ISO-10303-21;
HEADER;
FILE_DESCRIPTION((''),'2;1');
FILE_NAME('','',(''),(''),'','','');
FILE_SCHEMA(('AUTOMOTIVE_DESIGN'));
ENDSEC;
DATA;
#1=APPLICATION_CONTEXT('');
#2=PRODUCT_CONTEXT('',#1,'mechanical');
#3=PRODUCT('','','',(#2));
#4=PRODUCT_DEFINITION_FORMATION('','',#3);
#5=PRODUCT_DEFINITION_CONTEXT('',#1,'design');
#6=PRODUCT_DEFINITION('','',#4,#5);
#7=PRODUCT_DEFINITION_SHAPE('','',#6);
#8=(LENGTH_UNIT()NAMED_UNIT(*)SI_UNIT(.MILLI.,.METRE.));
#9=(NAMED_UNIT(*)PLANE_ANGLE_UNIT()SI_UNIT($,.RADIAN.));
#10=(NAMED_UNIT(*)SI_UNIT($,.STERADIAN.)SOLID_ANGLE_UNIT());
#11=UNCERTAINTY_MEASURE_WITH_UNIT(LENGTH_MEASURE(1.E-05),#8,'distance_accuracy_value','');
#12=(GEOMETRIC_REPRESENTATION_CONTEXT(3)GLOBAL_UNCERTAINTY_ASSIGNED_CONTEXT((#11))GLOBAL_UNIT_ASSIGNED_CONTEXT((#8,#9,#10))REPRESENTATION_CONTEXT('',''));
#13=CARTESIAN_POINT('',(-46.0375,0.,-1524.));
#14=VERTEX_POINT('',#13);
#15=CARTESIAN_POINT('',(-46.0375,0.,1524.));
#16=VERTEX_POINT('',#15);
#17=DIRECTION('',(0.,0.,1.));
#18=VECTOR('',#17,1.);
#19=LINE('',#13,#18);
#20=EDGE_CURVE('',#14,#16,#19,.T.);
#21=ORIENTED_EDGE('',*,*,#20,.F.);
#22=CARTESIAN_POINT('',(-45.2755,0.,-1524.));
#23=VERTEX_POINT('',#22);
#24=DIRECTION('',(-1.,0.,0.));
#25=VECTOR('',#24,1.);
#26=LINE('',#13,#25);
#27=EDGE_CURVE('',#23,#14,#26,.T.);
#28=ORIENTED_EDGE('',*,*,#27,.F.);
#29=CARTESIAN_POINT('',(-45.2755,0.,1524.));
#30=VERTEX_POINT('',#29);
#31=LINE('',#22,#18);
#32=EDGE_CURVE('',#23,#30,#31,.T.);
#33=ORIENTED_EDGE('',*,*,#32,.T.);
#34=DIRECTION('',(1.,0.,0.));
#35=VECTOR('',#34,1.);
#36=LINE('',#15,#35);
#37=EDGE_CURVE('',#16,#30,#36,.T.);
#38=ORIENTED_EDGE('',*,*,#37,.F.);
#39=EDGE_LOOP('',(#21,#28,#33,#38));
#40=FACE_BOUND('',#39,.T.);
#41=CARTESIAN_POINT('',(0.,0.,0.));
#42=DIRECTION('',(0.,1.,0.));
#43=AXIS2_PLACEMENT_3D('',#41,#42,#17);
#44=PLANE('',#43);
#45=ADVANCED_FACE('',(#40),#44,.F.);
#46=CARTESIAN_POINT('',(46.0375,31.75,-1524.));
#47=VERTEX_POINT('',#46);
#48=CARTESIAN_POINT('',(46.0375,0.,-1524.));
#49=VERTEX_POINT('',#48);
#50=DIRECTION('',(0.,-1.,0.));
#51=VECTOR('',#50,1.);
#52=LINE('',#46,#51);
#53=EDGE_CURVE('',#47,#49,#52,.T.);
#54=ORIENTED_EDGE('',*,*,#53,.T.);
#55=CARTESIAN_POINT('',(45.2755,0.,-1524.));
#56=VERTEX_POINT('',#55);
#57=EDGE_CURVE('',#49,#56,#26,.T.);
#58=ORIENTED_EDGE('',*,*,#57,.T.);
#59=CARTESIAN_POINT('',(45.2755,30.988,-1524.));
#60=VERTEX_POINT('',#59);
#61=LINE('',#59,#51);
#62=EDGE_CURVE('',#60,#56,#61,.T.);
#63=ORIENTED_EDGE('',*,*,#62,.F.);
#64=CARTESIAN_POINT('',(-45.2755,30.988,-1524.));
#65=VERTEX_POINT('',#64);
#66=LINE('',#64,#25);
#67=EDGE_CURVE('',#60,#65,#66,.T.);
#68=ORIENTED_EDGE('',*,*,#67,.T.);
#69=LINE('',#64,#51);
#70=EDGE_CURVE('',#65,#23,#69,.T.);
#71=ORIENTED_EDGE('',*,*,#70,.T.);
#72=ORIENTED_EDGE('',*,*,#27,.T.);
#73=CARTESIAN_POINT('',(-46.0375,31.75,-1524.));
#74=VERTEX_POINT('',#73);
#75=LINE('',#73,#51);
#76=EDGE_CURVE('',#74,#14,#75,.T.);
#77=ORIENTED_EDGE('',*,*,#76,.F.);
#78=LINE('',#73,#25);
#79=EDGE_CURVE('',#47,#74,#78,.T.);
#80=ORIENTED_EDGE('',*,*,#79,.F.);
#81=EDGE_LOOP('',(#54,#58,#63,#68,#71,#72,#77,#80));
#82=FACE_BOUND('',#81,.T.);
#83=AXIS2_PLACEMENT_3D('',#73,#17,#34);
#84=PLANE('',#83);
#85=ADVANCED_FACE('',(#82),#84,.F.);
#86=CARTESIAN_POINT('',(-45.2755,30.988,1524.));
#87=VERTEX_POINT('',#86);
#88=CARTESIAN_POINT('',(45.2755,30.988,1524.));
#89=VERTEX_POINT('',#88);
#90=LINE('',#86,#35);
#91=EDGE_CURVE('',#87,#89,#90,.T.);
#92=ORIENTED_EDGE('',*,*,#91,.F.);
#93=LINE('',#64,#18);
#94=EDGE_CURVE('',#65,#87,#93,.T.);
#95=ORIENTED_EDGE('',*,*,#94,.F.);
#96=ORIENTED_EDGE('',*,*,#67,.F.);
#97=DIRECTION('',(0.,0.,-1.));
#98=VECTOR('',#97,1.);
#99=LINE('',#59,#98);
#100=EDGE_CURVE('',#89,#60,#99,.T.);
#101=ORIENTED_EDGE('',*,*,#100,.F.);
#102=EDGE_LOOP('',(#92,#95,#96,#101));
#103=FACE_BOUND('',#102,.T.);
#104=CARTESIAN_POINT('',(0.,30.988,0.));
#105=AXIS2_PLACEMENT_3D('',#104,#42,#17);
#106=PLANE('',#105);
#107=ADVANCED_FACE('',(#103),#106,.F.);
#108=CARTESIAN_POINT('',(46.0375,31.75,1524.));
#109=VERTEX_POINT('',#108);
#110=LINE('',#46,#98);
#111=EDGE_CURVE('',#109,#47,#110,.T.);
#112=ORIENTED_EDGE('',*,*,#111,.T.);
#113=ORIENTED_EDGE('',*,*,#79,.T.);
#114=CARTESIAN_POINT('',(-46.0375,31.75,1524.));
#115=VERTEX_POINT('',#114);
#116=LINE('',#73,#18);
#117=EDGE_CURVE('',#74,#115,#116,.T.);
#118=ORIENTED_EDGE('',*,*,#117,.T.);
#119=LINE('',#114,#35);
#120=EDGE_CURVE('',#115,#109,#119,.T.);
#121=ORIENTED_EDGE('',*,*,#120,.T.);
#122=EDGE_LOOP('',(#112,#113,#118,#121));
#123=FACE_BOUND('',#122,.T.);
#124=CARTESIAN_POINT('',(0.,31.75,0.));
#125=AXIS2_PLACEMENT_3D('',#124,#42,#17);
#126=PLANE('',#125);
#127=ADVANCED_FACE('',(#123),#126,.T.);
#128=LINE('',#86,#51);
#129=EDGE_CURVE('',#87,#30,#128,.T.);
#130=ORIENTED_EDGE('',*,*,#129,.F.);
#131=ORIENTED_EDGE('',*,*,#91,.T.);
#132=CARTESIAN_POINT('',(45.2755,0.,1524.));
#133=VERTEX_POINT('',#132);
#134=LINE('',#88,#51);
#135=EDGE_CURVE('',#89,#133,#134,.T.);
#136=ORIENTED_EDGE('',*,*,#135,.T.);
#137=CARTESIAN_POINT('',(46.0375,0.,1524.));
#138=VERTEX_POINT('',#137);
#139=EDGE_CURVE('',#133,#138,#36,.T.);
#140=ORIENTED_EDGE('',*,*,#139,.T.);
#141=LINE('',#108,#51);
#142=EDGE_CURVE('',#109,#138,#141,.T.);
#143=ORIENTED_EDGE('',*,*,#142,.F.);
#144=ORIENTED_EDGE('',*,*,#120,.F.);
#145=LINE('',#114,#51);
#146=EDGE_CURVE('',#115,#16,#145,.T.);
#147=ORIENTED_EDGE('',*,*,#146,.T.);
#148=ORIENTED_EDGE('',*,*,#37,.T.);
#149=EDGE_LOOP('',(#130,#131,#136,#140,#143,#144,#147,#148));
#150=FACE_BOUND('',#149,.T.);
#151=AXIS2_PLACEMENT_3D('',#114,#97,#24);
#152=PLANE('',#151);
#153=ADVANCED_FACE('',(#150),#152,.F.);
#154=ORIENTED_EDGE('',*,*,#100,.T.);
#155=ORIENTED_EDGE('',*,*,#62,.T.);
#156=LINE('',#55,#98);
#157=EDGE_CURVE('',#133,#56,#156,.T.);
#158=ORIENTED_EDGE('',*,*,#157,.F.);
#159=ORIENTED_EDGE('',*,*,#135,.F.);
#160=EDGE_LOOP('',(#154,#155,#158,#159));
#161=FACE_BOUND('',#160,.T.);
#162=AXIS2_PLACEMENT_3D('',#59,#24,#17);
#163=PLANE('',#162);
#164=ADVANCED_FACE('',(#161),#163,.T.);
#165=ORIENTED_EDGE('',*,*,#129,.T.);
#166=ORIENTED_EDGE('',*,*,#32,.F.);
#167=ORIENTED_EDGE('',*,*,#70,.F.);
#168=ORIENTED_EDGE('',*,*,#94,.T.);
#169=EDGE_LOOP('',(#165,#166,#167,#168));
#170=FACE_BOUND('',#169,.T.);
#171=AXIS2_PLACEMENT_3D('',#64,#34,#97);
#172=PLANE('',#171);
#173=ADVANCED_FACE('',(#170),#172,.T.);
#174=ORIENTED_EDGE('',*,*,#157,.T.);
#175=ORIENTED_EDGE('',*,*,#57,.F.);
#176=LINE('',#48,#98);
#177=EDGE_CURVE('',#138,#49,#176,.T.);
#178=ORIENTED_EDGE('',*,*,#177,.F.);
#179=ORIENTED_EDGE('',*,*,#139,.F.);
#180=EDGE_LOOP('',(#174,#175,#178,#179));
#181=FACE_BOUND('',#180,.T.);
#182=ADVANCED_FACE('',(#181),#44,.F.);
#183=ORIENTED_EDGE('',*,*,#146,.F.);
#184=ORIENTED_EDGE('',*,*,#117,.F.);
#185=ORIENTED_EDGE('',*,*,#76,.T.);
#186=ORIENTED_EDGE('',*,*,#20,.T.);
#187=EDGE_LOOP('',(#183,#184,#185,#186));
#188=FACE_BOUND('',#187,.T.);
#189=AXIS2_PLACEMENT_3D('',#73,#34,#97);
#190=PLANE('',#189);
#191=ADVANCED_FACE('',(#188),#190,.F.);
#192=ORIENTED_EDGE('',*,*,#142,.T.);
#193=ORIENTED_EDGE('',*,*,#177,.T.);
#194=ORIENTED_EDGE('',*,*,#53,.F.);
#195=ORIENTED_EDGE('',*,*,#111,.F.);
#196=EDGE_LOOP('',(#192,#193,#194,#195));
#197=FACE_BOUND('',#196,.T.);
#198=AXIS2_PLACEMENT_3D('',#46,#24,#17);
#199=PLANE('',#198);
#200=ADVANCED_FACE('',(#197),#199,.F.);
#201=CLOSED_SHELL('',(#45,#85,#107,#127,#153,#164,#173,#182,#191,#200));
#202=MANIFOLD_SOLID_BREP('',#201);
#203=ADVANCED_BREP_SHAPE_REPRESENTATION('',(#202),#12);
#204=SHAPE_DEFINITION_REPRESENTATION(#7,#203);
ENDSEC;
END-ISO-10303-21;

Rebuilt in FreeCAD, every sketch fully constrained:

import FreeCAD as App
import Part
import Sketcher
Q = App.Units.Quantity


def add_polygon(sketch, points):
    """Adds a closed chain of lines whose ends are joined by coincident constraints."""
    first, n = sketch.GeometryCount, len(points)
    for a, b in zip(points, points[1:] + points[:1]):
        sketch.addGeometry(Part.LineSegment(App.Vector(*a, 0), App.Vector(*b, 0)), False)
    for i in range(n):
        sketch.addConstraint(Sketcher.Constraint("Coincident", first + i, 2, first + (i + 1) % n, 1))

doc = App.newDocument("Part")
body = doc.addObject("PartDesign::Body", "Body")

sketch1 = body.newObject("Sketcher::SketchObject", "Sketch")
sketch1.AttachmentSupport = (doc.getObject("XZ_Plane"), [""])
sketch1.MapMode = "FlatFace"
add_polygon(sketch1, [(-46, -1524), (-46, 1524), (46, 1524), (46, -1524)])
sketch1.addConstraint(Sketcher.Constraint("Vertical", 0))
sketch1.addConstraint(Sketcher.Constraint("Horizontal", 1))
sketch1.addConstraint(Sketcher.Constraint("Vertical", 2))
sketch1.addConstraint(Sketcher.Constraint("Horizontal", 3))
sketch1.addConstraint(Sketcher.Constraint("Symmetric", 0, 2, 2, 2, -1, 1))
sketch1.addConstraint(Sketcher.Constraint("DistanceY", 0, 1, 0, 2, Q("120 in")))
sketch1.addConstraint(Sketcher.Constraint("DistanceX", 1, 1, 1, 2, Q("3.625 in")))
pad1 = body.newObject("PartDesign::Pad", "Pad")
pad1.Profile = sketch1
pad1.Length = Q("1.25 in")
pad1.Reversed = True

sketch2 = body.newObject("Sketcher::SketchObject", "Sketch001")
sketch2.AttachmentSupport = (doc.getObject("XZ_Plane"), [""])
sketch2.MapMode = "FlatFace"
add_polygon(sketch2, [(-45, -1524), (-45, 1524), (45, 1524), (45, -1524)])
sketch2.addConstraint(Sketcher.Constraint("Vertical", 0))
sketch2.addConstraint(Sketcher.Constraint("Horizontal", 1))
sketch2.addConstraint(Sketcher.Constraint("Vertical", 2))
sketch2.addConstraint(Sketcher.Constraint("Horizontal", 3))
sketch2.addConstraint(Sketcher.Constraint("Symmetric", 0, 2, 2, 2, -1, 1))
sketch2.addConstraint(Sketcher.Constraint("DistanceY", 0, 1, 0, 2, Q("120 in")))
sketch2.addConstraint(Sketcher.Constraint("DistanceX", 1, 1, 1, 2, Q("3.565 in")))
pocket1 = body.newObject("PartDesign::Pocket", "Pocket")
pocket1.Profile = sketch2
pocket1.Length = Q("1.22 in")

doc.recompute()
